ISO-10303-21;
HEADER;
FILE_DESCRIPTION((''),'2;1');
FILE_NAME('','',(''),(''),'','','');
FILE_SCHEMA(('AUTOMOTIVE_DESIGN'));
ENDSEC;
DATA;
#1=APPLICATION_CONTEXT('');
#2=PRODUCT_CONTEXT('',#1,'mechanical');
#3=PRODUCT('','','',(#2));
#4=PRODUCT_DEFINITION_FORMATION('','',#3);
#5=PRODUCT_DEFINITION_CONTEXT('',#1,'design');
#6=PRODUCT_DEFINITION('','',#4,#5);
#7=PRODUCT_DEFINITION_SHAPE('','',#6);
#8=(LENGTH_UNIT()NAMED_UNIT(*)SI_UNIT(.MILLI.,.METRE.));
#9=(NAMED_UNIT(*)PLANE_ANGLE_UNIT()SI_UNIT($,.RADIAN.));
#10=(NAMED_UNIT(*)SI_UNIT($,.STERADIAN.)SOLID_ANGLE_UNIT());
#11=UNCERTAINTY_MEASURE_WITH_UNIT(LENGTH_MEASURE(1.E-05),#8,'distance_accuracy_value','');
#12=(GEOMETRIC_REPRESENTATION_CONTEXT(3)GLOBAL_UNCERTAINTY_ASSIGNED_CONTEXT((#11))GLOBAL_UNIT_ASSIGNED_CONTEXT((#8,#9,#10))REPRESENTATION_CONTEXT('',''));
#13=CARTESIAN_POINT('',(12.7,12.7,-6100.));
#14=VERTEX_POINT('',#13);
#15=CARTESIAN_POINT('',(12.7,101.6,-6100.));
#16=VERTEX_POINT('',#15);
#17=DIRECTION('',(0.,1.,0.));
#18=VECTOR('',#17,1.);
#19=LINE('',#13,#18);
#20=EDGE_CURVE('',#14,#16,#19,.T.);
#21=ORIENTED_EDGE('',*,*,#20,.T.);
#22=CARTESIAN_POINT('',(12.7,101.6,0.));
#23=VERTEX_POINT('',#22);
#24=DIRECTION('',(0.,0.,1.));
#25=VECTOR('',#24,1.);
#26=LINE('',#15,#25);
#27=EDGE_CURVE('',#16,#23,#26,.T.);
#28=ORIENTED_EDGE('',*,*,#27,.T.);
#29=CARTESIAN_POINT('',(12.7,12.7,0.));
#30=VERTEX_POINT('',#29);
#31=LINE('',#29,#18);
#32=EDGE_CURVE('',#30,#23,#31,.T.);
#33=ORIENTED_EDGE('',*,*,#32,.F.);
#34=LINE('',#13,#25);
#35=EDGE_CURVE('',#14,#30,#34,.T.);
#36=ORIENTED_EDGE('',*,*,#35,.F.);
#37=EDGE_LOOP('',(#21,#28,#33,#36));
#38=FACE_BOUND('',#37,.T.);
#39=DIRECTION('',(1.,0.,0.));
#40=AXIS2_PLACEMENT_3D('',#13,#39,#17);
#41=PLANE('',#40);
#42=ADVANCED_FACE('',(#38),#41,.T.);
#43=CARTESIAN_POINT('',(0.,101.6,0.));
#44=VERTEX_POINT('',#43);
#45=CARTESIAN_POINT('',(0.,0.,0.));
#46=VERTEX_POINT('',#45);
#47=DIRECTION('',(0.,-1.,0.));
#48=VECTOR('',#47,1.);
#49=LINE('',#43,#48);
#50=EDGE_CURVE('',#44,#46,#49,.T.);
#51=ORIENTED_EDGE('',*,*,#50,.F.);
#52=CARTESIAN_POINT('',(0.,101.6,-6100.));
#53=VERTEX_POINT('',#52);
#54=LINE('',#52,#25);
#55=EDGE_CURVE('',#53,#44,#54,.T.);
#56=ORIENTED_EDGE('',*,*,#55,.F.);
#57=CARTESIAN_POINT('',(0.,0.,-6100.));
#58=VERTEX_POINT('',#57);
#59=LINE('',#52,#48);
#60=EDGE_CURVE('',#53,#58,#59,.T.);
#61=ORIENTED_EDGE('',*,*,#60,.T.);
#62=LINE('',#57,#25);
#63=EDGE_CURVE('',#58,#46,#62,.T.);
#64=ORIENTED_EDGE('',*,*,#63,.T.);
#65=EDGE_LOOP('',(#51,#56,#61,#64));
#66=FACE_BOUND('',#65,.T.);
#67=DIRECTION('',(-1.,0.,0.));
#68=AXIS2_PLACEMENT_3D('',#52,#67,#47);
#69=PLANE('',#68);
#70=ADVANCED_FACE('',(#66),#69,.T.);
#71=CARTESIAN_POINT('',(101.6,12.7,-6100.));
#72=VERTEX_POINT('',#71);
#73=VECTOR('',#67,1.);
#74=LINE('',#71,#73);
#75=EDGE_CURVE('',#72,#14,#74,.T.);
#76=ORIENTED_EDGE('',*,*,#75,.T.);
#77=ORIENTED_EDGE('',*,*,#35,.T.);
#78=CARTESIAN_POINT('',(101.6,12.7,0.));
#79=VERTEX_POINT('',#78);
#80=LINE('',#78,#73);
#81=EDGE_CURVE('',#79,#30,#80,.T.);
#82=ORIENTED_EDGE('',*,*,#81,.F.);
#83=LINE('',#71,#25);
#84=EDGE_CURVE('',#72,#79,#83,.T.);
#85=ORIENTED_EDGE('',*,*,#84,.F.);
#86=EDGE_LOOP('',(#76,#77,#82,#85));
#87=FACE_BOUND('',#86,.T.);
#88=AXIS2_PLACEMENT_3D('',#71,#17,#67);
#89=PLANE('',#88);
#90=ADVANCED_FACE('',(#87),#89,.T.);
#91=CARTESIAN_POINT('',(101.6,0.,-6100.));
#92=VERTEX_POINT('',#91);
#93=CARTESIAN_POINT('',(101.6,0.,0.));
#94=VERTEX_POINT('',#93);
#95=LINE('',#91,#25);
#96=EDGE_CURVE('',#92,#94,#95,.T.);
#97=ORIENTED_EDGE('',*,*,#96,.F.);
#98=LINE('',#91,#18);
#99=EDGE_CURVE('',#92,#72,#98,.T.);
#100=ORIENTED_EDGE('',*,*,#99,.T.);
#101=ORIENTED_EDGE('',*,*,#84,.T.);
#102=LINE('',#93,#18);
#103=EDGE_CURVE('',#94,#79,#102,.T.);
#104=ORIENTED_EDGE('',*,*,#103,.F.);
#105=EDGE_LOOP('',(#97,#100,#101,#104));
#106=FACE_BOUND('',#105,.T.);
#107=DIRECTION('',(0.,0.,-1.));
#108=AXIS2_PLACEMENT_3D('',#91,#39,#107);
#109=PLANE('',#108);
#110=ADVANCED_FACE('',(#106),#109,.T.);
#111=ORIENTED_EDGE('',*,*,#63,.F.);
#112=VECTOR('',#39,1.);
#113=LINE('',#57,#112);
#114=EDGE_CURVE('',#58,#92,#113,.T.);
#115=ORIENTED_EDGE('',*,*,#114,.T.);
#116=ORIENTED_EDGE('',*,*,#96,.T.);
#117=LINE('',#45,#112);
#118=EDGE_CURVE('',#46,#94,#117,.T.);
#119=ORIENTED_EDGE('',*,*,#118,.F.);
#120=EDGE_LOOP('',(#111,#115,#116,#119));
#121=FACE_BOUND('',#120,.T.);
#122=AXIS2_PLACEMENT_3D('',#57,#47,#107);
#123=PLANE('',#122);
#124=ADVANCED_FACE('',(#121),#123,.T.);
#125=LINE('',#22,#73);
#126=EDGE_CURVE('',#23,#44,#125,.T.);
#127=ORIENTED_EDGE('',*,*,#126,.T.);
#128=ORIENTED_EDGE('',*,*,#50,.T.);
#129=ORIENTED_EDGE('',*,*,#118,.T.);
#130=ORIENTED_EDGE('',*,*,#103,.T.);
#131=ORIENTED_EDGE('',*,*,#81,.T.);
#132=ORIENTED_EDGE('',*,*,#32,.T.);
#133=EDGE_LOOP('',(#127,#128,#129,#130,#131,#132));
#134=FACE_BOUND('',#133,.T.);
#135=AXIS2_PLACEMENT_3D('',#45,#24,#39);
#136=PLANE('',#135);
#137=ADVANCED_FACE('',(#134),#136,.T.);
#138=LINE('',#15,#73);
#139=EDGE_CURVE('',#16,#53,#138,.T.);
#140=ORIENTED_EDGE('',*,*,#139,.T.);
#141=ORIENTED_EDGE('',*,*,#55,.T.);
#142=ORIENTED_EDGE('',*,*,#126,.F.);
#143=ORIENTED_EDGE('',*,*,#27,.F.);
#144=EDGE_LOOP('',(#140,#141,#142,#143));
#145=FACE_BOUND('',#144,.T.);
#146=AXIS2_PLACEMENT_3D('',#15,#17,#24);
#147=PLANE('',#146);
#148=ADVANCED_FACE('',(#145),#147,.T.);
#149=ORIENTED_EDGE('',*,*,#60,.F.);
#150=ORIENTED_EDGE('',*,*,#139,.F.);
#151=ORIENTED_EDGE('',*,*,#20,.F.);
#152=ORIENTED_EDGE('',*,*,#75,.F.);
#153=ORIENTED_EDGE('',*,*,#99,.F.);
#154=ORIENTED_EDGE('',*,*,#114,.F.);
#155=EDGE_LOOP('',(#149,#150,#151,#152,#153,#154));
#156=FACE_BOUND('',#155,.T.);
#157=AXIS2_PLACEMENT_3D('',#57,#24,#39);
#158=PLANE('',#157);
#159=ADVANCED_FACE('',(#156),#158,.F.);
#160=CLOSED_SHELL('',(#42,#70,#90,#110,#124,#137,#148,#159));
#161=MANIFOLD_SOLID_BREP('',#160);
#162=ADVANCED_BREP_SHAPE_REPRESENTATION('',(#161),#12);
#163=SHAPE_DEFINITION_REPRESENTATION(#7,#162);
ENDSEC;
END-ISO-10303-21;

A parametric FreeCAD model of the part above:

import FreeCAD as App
import Part
import Sketcher

V = App.Vector
Q = App.Units.Quantity

doc = App.newDocument("Part")
body = doc.addObject("PartDesign::Body", "Body")

sketch1 = doc.addObject("Sketcher::SketchObject", "Sketch")
body.addObject(sketch1)
sketch1.AttachmentSupport = (doc.XY_Plane, [""])
sketch1.MapMode = "FlatFace"
sketch1.addGeometry(Part.LineSegment(V(0, 102, 0), V(0, 0, 0)), False)
sketch1.addGeometry(Part.LineSegment(V(0, 0, 0), V(102, 0, 0)), False)
sketch1.addGeometry(Part.LineSegment(V(102, 0, 0), V(102, 13, 0)), False)
sketch1.addGeometry(Part.LineSegment(V(102, 13, 0), V(13, 13, 0)), False)
sketch1.addGeometry(Part.LineSegment(V(13, 13, 0), V(13, 102, 0)), False)
sketch1.addGeometry(Part.LineSegment(V(13, 102, 0), V(0, 102, 0)), False)
sketch1.addConstraint(Sketcher.Constraint("Coincident", 0, 2, 1, 1))
sketch1.addConstraint(Sketcher.Constraint("Coincident", 1, 2, 2, 1))
sketch1.addConstraint(Sketcher.Constraint("Coincident", 2, 2, 3, 1))
sketch1.addConstraint(Sketcher.Constraint("Coincident", 3, 2, 4, 1))
sketch1.addConstraint(Sketcher.Constraint("Coincident", 4, 2, 5, 1))
sketch1.addConstraint(Sketcher.Constraint("Coincident", 5, 2, 0, 1))
sketch1.addConstraint(Sketcher.Constraint("Vertical", 0))
sketch1.addConstraint(Sketcher.Constraint("Horizontal", 1))
sketch1.addConstraint(Sketcher.Constraint("Vertical", 2))
sketch1.addConstraint(Sketcher.Constraint("Horizontal", 3))
sketch1.addConstraint(Sketcher.Constraint("Vertical", 4))
sketch1.addConstraint(Sketcher.Constraint("Horizontal", 5))
sketch1.addConstraint(Sketcher.Constraint("Coincident", 0, 2, -1, 1))
sketch1.addConstraint(Sketcher.Constraint("Equal", 1, 0))
sketch1.addConstraint(Sketcher.Constraint("Equal", 5, 2))
sketch1.addConstraint(Sketcher.Constraint("DistanceX", 1, 1, 1, 2, Q("4 in")))
sketch1.addConstraint(Sketcher.Constraint("DistanceX", 3, 2, 3, 1, Q("3.5 in")))
pad1 = doc.addObject("PartDesign::Pad", "Pad")
body.addObject(pad1)
pad1.Profile = sketch1
pad1.Length = 6100
pad1.Reversed = True

doc.recompute()
